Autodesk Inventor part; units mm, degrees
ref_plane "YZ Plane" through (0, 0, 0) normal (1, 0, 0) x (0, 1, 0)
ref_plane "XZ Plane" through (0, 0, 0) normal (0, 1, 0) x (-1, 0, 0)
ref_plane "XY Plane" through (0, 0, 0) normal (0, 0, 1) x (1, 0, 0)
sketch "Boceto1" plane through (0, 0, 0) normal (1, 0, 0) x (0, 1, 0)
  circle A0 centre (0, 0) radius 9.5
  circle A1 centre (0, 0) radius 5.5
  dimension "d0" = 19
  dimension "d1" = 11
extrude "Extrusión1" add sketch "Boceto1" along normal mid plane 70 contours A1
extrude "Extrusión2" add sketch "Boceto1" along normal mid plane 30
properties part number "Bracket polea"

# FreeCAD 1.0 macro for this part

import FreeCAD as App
import Part
import Sketcher

V = App.Vector
Q = App.Units.Quantity

doc = App.newDocument("Part")
body = doc.addObject("PartDesign::Body", "Body")

sketch1 = body.newObject("Sketcher::SketchObject", "Sketch")
sketch1.AttachmentSupport = (doc.getObject("YZ_Plane"), [""])
sketch1.MapMode = "FlatFace"
sketch1.addGeometry(Part.Circle(V(0, 0, 0), V(0, 0, 1), 6), False)
sketch1.addConstraint([
    Sketcher.Constraint("Coincident", 0, 3, -1, 1),
    Sketcher.Constraint("Diameter", 0, Q("11 mm")),
])
pad1 = body.newObject("PartDesign::Pad", "Pad")
pad1.Profile = sketch1
pad1.Length = 70
pad1.Midplane = True

sketch2 = body.newObject("Sketcher::SketchObject", "Sketch001")
sketch2.AttachmentSupport = (doc.getObject("YZ_Plane"), [""])
sketch2.MapMode = "FlatFace"
sketch2.addGeometry([
    Part.Circle(V(0, 0, 0), V(0, 0, 1), 10),
    Part.Circle(V(0, 0, 0), V(0, 0, 1), 6),
], False)
sketch2.addConstraint([
    Sketcher.Constraint("Coincident", 0, 3, -1, 1),
    Sketcher.Constraint("Coincident", 1, 3, -1, 1),
    Sketcher.Constraint("Diameter", 0, Q("19 mm")),
    Sketcher.Constraint("Diameter", 1, Q("11 mm")),
])
pad2 = body.newObject("PartDesign::Pad", "Pad001")
pad2.Profile = sketch2
pad2.Length = 30
pad2.Midplane = True

doc.recompute()
